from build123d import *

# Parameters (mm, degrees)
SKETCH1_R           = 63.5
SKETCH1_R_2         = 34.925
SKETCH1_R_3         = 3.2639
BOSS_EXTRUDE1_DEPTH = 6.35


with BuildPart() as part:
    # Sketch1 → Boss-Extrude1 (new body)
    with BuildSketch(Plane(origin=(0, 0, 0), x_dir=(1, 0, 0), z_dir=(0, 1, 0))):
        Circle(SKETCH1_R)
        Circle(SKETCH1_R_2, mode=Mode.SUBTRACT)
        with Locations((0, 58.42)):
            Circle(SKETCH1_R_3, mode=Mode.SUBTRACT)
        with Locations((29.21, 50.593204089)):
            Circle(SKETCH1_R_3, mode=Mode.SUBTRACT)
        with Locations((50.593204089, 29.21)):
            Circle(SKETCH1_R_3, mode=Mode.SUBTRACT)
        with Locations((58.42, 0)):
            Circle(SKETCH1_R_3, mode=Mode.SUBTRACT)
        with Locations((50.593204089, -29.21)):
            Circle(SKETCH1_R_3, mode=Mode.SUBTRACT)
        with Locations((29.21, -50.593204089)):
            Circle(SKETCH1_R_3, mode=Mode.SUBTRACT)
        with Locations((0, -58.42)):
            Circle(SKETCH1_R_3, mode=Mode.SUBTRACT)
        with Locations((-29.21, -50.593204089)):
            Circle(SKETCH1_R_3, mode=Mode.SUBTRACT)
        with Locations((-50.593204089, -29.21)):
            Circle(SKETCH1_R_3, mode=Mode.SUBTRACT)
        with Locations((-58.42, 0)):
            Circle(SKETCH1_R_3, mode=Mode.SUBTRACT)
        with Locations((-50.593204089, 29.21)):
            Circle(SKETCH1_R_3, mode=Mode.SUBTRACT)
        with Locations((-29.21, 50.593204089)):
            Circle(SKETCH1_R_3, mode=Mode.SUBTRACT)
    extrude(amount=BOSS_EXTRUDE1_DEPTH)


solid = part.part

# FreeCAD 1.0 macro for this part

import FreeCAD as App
import Part
import Sketcher
from FreeCAD import Vector
Q = App.Units.Quantity

doc = App.newDocument("Part")
params = doc.addObject("Spreadsheet::Sheet", "Params")
for row, (alias, value) in enumerate([
    ("sketch1_diameter", "5 in"),
    ("sketch1_diameter2", "2.75 in"),
    ("sketch1_diameter3", "0.257 in"),
    ("pad1_length", "0.25 in"),
], start=1):
    params.set(f"A{row}", alias)
    params.set(f"B{row}", "=" + value)
    params.setAlias(f"B{row}", alias)

body = doc.addObject("PartDesign::Body", "Body")

# Sketch on XZ plane
sketch1 = body.newObject("Sketcher::SketchObject", "Sketch")
sketch1.AttachmentSupport = (doc.getObject("XZ_Plane"), [""])
sketch1.MapMode = "FlatFace"
sketch1.addGeometry([
    Part.Circle(Vector(0, 0, 0), Vector(0, 0, 1), 63.5),  # 0
    Part.Circle(Vector(-29.21, 50.593204, 0), Vector(0, 0, 1), 3.2639),  # 1
    Part.Circle(Vector(-50.593204, 29.21, 0), Vector(0, 0, 1), 3.2639),  # 2
    Part.Circle(Vector(0, 58.42, 0), Vector(0, 0, 1), 3.2639),  # 3
    Part.Circle(Vector(29.21, 50.593204, 0), Vector(0, 0, 1), 3.2639),  # 4
    Part.Circle(Vector(50.593204, 29.21, 0), Vector(0, 0, 1), 3.2639),  # 5
    Part.Circle(Vector(-58.42, 0, 0), Vector(0, 0, 1), 3.2639),  # 6
    Part.Circle(Vector(-50.593204, -29.21, 0), Vector(0, 0, 1), 3.2639),  # 7
    Part.Circle(Vector(-29.21, -50.593204, 0), Vector(0, 0, 1), 3.2639),  # 8
    Part.Circle(Vector(0, 0, 0), Vector(0, 0, 1), 34.925),  # 9
    Part.Circle(Vector(58.42, 0, 0), Vector(0, 0, 1), 3.2639),  # 10
    Part.Circle(Vector(50.593204, -29.21, 0), Vector(0, 0, 1), 3.2639),  # 11
    Part.Circle(Vector(0, -58.42, 0), Vector(0, 0, 1), 3.2639),  # 12
    Part.Circle(Vector(29.21, -50.593204, 0), Vector(0, 0, 1), 3.2639),  # 13
], False)
sketch1.addConstraint([
    Sketcher.Constraint("Coincident", 0, 3, -1, 1),
    Sketcher.Constraint("Coincident", 9, 3, -1, 1),
    Sketcher.Constraint("Equal", 1, 2),
    Sketcher.Constraint("Equal", 2, 3),
    Sketcher.Constraint("Equal", 3, 4),
    Sketcher.Constraint("Equal", 4, 5),
    Sketcher.Constraint("Equal", 5, 6),
    Sketcher.Constraint("Equal", 6, 7),
    Sketcher.Constraint("Equal", 7, 8),
    Sketcher.Constraint("Equal", 8, 10),
    Sketcher.Constraint("Equal", 10, 11),
    Sketcher.Constraint("Equal", 11, 12),
    Sketcher.Constraint("Equal", 12, 13),
    Sketcher.Constraint("Symmetric", 5, 3, 7, 3, -1, 1),
    Sketcher.Constraint("Symmetric", 4, 3, 8, 3, -1, 1),
    Sketcher.Constraint("Symmetric", 6, 3, 10, 3, -1, 1),
    Sketcher.Constraint("Symmetric", 2, 3, 11, 3, -1, 1),
    Sketcher.Constraint("Symmetric", 3, 3, 12, 3, -1, 1),
    Sketcher.Constraint("Symmetric", 1, 3, 13, 3, -1, 1),
    Sketcher.Constraint("Symmetric", 1, 3, 4, 3, -2),
    Sketcher.Constraint("Symmetric", 2, 3, 5, 3, -2),
    Sketcher.Constraint("PointOnObject", 3, 3, -2),
    Sketcher.Constraint("PointOnObject", 6, 3, -1),
    Sketcher.Constraint("Diameter", 0, Q("5 in")),
    Sketcher.Constraint("Diameter", 9, Q("2.75 in")),
    Sketcher.Constraint("Diameter", 1, Q("0.257 in")),
    Sketcher.Constraint("DistanceY", -1, 1, 3, 3, Q("2.3 in")),
    Sketcher.Constraint("DistanceX", 6, 3, -1, 1, Q("2.3 in")),
    Sketcher.Constraint("DistanceX", 1, 3, 4, 3, Q("2.3 in")),
    Sketcher.Constraint("DistanceY", 7, 3, 2, 3, Q("2.3 in")),
    Sketcher.Constraint("DistanceX", 2, 3, 5, 3, Q("101.186408 mm")),
    Sketcher.Constraint("DistanceY", 8, 3, 1, 3, Q("101.186408 mm")),
])
sketch1.setExpression("Constraints[23]", "Params.sketch1_diameter")
sketch1.setExpression("Constraints[24]", "Params.sketch1_diameter2")
sketch1.setExpression("Constraints[25]", "Params.sketch1_diameter3")
pad1 = body.newObject("PartDesign::Pad", "Pad")
pad1.Profile = sketch1
pad1.setExpression("Length", "Params.pad1_length")
pad1.Reversed = True

doc.recompute()
